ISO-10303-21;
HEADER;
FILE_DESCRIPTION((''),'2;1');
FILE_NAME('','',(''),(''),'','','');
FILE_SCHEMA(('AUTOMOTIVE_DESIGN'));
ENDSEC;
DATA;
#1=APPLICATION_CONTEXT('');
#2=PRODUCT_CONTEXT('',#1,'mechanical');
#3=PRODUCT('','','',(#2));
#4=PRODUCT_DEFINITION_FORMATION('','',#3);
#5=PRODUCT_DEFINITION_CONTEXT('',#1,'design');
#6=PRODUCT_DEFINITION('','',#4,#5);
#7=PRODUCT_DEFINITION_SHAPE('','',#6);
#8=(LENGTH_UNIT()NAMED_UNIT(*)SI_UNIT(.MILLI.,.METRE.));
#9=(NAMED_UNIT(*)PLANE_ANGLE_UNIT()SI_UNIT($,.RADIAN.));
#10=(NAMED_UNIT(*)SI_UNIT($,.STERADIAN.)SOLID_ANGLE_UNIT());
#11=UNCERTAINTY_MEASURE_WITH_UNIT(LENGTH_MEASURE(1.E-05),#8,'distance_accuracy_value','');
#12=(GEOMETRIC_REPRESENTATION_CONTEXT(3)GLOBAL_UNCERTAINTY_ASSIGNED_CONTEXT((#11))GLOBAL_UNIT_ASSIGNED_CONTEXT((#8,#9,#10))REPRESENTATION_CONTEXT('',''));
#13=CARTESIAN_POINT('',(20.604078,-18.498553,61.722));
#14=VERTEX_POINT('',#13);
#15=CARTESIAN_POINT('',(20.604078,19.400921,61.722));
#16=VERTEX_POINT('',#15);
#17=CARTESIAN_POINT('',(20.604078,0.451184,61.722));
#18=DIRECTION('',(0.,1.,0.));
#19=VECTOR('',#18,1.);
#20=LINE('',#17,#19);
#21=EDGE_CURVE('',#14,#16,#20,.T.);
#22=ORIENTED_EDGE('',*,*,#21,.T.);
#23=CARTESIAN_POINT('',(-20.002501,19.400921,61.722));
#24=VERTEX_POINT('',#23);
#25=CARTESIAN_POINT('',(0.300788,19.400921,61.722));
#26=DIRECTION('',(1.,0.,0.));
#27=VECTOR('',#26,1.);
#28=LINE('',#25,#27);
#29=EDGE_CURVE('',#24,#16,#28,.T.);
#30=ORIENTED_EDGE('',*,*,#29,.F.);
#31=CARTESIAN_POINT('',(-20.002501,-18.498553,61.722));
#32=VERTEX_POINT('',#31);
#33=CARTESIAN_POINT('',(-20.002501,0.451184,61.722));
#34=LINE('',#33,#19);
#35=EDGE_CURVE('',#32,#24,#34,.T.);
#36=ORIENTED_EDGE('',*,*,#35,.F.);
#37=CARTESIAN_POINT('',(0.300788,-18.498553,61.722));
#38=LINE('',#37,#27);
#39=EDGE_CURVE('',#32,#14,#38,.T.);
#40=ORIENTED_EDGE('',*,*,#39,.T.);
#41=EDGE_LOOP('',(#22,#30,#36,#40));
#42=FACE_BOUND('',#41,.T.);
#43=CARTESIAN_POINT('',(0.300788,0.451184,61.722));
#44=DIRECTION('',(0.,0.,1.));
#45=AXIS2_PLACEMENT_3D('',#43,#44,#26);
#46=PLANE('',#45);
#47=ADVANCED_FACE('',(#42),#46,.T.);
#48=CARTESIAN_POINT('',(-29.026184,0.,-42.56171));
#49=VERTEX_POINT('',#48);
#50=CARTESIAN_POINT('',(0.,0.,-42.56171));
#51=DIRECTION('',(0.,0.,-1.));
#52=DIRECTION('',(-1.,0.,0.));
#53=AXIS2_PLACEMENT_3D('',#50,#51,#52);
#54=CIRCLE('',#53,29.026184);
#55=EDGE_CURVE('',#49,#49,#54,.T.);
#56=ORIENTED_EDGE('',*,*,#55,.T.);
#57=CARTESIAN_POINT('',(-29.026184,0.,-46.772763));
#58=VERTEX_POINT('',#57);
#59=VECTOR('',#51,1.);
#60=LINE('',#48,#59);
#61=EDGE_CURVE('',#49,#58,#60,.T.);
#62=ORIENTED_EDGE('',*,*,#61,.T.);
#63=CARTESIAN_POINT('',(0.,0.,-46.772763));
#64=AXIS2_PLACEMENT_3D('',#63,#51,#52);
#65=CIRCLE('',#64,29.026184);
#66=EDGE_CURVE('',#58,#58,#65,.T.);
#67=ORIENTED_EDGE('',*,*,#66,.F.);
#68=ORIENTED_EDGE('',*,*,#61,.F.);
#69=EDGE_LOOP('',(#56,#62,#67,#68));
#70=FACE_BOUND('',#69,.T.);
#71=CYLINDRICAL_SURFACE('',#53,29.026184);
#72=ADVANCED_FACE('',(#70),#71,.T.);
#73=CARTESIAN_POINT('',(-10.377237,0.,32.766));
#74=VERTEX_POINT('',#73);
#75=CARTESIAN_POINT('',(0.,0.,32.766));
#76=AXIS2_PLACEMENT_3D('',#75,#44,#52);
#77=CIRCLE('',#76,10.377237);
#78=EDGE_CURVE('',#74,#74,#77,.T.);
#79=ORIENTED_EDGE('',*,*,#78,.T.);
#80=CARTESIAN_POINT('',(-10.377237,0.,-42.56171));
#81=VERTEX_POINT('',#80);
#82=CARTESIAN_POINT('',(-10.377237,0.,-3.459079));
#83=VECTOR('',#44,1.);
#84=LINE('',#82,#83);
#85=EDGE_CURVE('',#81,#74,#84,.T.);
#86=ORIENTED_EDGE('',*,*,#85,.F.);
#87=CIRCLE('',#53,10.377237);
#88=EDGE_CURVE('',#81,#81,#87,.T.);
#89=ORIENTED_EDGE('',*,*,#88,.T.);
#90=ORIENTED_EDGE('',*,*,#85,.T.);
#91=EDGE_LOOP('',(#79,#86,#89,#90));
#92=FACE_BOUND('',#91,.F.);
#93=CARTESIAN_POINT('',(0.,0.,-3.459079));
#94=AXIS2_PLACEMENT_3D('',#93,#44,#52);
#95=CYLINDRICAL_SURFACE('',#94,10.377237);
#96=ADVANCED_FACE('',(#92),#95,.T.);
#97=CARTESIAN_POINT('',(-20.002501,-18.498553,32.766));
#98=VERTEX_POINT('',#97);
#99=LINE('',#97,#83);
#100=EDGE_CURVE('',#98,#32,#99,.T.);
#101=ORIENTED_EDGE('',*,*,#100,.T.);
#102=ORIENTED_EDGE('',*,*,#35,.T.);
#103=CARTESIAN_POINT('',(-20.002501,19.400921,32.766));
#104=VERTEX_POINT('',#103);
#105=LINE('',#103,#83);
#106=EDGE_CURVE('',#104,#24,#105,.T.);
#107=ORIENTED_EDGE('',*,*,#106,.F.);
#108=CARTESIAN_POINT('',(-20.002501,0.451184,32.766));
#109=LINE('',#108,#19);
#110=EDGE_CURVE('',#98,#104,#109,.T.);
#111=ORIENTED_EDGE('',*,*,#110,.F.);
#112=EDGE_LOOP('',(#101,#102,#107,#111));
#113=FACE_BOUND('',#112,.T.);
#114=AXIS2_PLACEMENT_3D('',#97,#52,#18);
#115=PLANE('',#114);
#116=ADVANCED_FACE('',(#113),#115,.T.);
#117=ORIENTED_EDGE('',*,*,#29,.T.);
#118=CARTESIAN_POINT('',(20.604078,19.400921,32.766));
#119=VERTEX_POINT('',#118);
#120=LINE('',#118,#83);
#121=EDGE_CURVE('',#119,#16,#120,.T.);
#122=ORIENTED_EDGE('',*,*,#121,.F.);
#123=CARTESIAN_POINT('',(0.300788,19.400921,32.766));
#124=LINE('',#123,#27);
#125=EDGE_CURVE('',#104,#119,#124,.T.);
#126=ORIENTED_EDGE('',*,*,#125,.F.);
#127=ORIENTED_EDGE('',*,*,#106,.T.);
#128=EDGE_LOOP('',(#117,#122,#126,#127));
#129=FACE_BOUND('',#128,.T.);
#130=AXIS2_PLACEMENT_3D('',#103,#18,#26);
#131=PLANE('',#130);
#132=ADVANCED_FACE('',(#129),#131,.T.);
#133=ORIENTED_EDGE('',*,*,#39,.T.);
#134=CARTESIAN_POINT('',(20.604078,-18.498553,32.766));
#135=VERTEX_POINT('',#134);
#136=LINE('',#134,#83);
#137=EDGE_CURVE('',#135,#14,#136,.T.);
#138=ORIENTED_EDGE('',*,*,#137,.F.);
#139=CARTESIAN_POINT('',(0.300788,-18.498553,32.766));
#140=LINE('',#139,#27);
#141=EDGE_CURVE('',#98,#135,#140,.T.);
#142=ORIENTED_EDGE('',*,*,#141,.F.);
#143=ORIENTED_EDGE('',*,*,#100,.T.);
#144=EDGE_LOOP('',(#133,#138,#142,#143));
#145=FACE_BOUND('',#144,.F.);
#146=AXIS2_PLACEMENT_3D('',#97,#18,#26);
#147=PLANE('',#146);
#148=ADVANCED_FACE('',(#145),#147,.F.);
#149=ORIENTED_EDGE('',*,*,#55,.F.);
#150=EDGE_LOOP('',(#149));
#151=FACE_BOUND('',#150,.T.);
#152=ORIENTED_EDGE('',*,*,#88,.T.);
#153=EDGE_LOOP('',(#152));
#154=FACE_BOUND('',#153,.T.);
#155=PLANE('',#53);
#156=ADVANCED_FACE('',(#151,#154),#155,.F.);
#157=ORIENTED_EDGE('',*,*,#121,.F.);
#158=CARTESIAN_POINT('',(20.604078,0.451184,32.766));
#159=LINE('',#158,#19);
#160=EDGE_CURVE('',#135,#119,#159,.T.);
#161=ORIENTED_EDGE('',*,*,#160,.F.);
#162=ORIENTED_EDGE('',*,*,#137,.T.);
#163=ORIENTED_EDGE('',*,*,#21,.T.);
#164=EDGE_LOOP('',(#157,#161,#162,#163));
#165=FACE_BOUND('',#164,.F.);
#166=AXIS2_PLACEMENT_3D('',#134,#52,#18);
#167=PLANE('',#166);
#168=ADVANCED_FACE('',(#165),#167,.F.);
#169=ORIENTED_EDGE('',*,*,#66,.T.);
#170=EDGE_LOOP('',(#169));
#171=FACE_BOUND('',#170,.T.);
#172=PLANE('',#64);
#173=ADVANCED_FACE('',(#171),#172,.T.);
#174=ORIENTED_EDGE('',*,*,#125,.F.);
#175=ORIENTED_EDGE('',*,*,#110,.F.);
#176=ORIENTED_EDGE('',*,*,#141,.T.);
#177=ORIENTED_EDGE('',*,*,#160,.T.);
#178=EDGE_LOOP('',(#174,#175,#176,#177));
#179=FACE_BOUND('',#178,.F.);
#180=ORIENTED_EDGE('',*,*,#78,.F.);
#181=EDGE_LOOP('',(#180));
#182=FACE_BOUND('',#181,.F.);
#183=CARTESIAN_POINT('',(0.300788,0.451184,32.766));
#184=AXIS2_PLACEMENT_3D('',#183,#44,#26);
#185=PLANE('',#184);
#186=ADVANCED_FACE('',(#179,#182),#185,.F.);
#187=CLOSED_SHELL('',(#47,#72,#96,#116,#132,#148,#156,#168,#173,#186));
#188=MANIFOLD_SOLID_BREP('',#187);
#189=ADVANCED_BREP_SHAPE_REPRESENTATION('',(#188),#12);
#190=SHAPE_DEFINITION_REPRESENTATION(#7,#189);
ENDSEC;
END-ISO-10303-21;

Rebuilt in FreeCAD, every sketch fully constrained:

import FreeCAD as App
import Part
import Sketcher
from FreeCAD import Vector
Q = App.Units.Quantity

doc = App.newDocument("Part")
body = doc.addObject("PartDesign::Body", "Body")

sketch1 = doc.addObject("Sketcher::SketchObject", "Sketch")
body.addObject(sketch1)
sketch1.AttachmentSupport = (doc.XZ_Plane, [""])
sketch1.MapMode = "FlatFace"
sketch1.addGeometry([
    Part.LineSegment(Vector(-10.4, 35.6, 0), Vector(-10.4, -42.6, 0)),
    Part.LineSegment(Vector(-10.4, -42.6, 0), Vector(-29, -42.6, 0)),
    Part.LineSegment(Vector(-29, -42.6, 0), Vector(-29, -46.8, 0)),
    Part.LineSegment(Vector(-29, -46.8, 0), Vector(0, -46.8, 0)),
    Part.LineSegment(Vector(0, -46.8, 0), Vector(0, 35.6, 0)),
    Part.LineSegment(Vector(0, 35.6, 0), Vector(-10.4, 35.6, 0)),
], False)
sketch1.addConstraint([
    Sketcher.Constraint("Coincident", 0, 2, 1, 1),
    Sketcher.Constraint("Coincident", 1, 2, 2, 1),
    Sketcher.Constraint("Coincident", 2, 2, 3, 1),
    Sketcher.Constraint("Coincident", 3, 2, 4, 1),
    Sketcher.Constraint("Coincident", 4, 2, 5, 1),
    Sketcher.Constraint("Coincident", 5, 2, 0, 1),
    Sketcher.Constraint("Vertical", 0),
    Sketcher.Constraint("Horizontal", 1),
    Sketcher.Constraint("Vertical", 2),
    Sketcher.Constraint("Horizontal", 3),
    Sketcher.Constraint("Vertical", 4),
    Sketcher.Constraint("Horizontal", 5),
    Sketcher.Constraint("PointOnObject", 3, 2, -2),
    Sketcher.Constraint("DistanceY", 0, 2, 0, 1, Q("78.205261 mm")),
    Sketcher.Constraint("DistanceX", 1, 2, 1, 1, Q("18.648948 mm")),
    Sketcher.Constraint("DistanceX", 3, 1, 3, 2, Q("29.026184 mm")),
    Sketcher.Constraint("DistanceY", 2, 2, 2, 1, Q("4.211053 mm")),
    Sketcher.Constraint("DistanceY", 0, 2, -1, 1, Q("42.56171 mm")),
])
revolution = doc.addObject("PartDesign::Revolution", "Revolution")
body.addObject(revolution)
revolution.Profile = sketch1
revolution.ReferenceAxis = (sketch1, ["V_Axis"])
revolution.Angle = 360

sketch2 = doc.addObject("Sketcher::SketchObject", "Sketch001")
body.addObject(sketch2)
sketch2.AttachmentSupport = (doc.XY_Plane, [""])
sketch2.MapMode = "FlatFace"
sketch2.AttachmentOffset = App.Placement(Vector(0, 0, 1.29 * 25.4), App.Rotation())
sketch2.addGeometry([
    Part.LineSegment(Vector(-20, 19, 0), Vector(-20, -18, 0)),
    Part.LineSegment(Vector(-20, -18, 0), Vector(21, -18, 0)),
    Part.LineSegment(Vector(21, -18, 0), Vector(21, 19, 0)),
    Part.LineSegment(Vector(21, 19, 0), Vector(-20, 19, 0)),
], False)
sketch2.addConstraint([
    Sketcher.Constraint("Coincident", 0, 2, 1, 1),
    Sketcher.Constraint("Coincident", 1, 2, 2, 1),
    Sketcher.Constraint("Coincident", 2, 2, 3, 1),
    Sketcher.Constraint("Coincident", 3, 2, 0, 1),
    Sketcher.Constraint("Vertical", 0),
    Sketcher.Constraint("Horizontal", 1),
    Sketcher.Constraint("Vertical", 2),
    Sketcher.Constraint("Horizontal", 3),
    Sketcher.Constraint("DistanceX", 0, 2, -1, 1, Q("0.7875 in")),
    Sketcher.Constraint("DistanceX", 1, 1, 1, 2, Q("40.606579 mm")),
    Sketcher.Constraint("DistanceY", 0, 2, 0, 1, Q("37.899474 mm")),
    Sketcher.Constraint("DistanceY", -1, 1, 2, 2, Q("19.400921 mm")),
])
pad1 = doc.addObject("PartDesign::Pad", "Pad")
body.addObject(pad1)
pad1.Profile = sketch2
pad1.Length = Q("1.14 in")

doc.recompute()
